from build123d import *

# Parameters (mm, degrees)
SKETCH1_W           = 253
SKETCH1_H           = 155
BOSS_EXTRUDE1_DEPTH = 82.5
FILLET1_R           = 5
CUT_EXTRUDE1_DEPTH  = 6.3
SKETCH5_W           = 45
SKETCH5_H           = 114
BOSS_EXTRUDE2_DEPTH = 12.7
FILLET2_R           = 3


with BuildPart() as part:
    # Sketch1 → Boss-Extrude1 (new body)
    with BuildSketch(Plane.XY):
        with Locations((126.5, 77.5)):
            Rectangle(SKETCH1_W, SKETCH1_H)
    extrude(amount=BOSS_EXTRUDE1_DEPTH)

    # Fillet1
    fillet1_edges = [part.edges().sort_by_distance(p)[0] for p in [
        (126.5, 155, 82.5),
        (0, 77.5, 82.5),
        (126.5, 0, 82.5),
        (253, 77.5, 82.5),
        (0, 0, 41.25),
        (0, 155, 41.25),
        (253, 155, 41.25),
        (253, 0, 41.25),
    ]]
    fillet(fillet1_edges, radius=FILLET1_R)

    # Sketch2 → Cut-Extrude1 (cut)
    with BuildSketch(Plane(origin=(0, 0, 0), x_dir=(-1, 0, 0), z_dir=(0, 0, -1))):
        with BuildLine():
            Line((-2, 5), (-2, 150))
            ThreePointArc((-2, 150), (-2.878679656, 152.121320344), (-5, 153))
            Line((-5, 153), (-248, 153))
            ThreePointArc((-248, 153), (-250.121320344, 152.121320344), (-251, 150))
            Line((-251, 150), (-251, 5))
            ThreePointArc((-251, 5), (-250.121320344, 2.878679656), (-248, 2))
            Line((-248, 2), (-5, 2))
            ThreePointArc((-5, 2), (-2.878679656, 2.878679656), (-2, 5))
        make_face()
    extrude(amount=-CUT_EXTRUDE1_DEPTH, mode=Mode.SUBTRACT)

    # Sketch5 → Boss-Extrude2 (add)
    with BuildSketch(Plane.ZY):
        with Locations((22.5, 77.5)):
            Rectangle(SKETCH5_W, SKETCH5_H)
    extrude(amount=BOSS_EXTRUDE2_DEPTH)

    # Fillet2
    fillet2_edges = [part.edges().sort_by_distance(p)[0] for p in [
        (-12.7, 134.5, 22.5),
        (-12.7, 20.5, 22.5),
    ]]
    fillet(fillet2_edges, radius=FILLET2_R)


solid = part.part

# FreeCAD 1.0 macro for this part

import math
import FreeCAD as App
import Part
import Sketcher
Q = App.Units.Quantity


def edges_at(feature, points):
    """Names of the edges that pass closest to the given points."""
    edges = feature.Shape.Edges
    near = lambda p: min(range(len(edges)), key=lambda i: edges[i].distToShape(Part.Vertex(*p))[0])
    return sorted({f"Edge{near(p) + 1}" for p in points})


def add_polygon(sketch, points):
    """Adds a closed chain of lines whose ends are joined by coincident constraints."""
    first, n = sketch.GeometryCount, len(points)
    for a, b in zip(points, points[1:] + points[:1]):
        sketch.addGeometry(Part.LineSegment(App.Vector(*a, 0), App.Vector(*b, 0)), False)
    for i in range(n):
        sketch.addConstraint(Sketcher.Constraint("Coincident", first + i, 2, first + (i + 1) % n, 1))

doc = App.newDocument("Part")
body = doc.addObject("PartDesign::Body", "Body")

sketch1 = body.newObject("Sketcher::SketchObject", "Sketch")
sketch1.AttachmentSupport = (doc.getObject("XY_Plane"), [""])
sketch1.MapMode = "FlatFace"
add_polygon(sketch1, [(0, 155), (0, 0), (253, 0), (253, 155)])
sketch1.addConstraint([
    Sketcher.Constraint("Vertical", 0),
    Sketcher.Constraint("Horizontal", 1),
    Sketcher.Constraint("Vertical", 2),
    Sketcher.Constraint("Horizontal", 3),
    Sketcher.Constraint("Coincident", 0, 2, -1, 1),
    Sketcher.Constraint("DistanceX", 1, 1, 1, 2, Q("253 mm")),
    Sketcher.Constraint("DistanceY", 0, 2, 0, 1, Q("155 mm")),
])
pad1 = body.newObject("PartDesign::Pad", "Pad")
pad1.Profile = sketch1
pad1.Length = 82.5
doc.recompute()

fillet = body.newObject("PartDesign::Fillet", "Fillet")
fillet.Base = (pad1, edges_at(pad1, [
    (126.5, 155, 82.5),
    (0, 77.5, 82.5),
    (126.5, 0, 82.5),
    (253, 77.5, 82.5),
    (0, 0, 41.25),
    (0, 155, 41.25),
    (253, 155, 41.25),
    (253, 0, 41.25),
]))
fillet.Radius = 5

sketch2 = body.newObject("Sketcher::SketchObject", "Sketch001")
sketch2.AttachmentSupport = (doc.getObject("XY_Plane"), [""])
sketch2.MapMode = "FlatFace"
sketch2.addGeometry([
    Part.LineSegment(App.Vector(2, 5, 0), App.Vector(2, 150, 0)),
    Part.ArcOfCircle(Part.Circle(App.Vector(5, 150, 0), App.Vector(0, 0, 1), 3), math.radians(90), math.radians(180)),
    Part.LineSegment(App.Vector(5, 153, 0), App.Vector(248, 153, 0)),
    Part.ArcOfCircle(Part.Circle(App.Vector(248, 150, 0), App.Vector(0, 0, 1), 3), math.radians(0), math.radians(90)),
    Part.LineSegment(App.Vector(251, 150, 0), App.Vector(251, 5, 0)),
    Part.ArcOfCircle(Part.Circle(App.Vector(248, 5, 0), App.Vector(0, 0, 1), 3), math.radians(-90), math.radians(0)),
    Part.LineSegment(App.Vector(248, 2, 0), App.Vector(5, 2, 0)),
    Part.ArcOfCircle(Part.Circle(App.Vector(5, 5, 0), App.Vector(0, 0, 1), 3), math.radians(180), math.radians(270)),
], False)
sketch2.addConstraint([
    Sketcher.Constraint("Tangent", 0, 2, 1, 2),
    Sketcher.Constraint("Tangent", 1, 1, 2, 1),
    Sketcher.Constraint("Tangent", 2, 2, 3, 2),
    Sketcher.Constraint("Tangent", 3, 1, 4, 1),
    Sketcher.Constraint("Tangent", 4, 2, 5, 2),
    Sketcher.Constraint("Tangent", 5, 1, 6, 1),
    Sketcher.Constraint("Tangent", 6, 2, 7, 2),
    Sketcher.Constraint("Tangent", 7, 1, 0, 1),
    Sketcher.Constraint("Vertical", 0),
    Sketcher.Constraint("Horizontal", 2),
    Sketcher.Constraint("Vertical", 4),
    Sketcher.Constraint("Horizontal", 6),
    Sketcher.Constraint("Equal", 1, 3),
    Sketcher.Constraint("Equal", 3, 5),
    Sketcher.Constraint("Equal", 5, 7),
    Sketcher.Constraint("Radius", 1, Q("3 mm")),
    Sketcher.Constraint("DistanceX", 2, 1, 2, 2, Q("243 mm")),
    Sketcher.Constraint("DistanceY", 0, 1, 0, 2, Q("145 mm")),
    Sketcher.Constraint("DistanceX", -1, 1, 1, 3, Q("5 mm")),
    Sketcher.Constraint("DistanceY", -1, 1, 1, 3, Q("150 mm")),
])
pocket1 = body.newObject("PartDesign::Pocket", "Pocket")
pocket1.Profile = sketch2
pocket1.Length = 6.3
pocket1.Reversed = True

sketch3 = body.newObject("Sketcher::SketchObject", "Sketch002")
sketch3.AttachmentSupport = (doc.getObject("YZ_Plane"), [""])
sketch3.MapMode = "FlatFace"
add_polygon(sketch3, [(134, 0), (20, 0), (20, 45), (134, 45)])
sketch3.addConstraint([
    Sketcher.Constraint("Horizontal", 0),
    Sketcher.Constraint("Vertical", 1),
    Sketcher.Constraint("Horizontal", 2),
    Sketcher.Constraint("Vertical", 3),
    Sketcher.Constraint("PointOnObject", 0, 2, -1),
    Sketcher.Constraint("DistanceX", 0, 2, 0, 1, Q("114 mm")),
    Sketcher.Constraint("DistanceY", 1, 1, 1, 2, Q("45 mm")),
    Sketcher.Constraint("DistanceX", -1, 1, 0, 2, Q("20.5 mm")),
])
pad2 = body.newObject("PartDesign::Pad", "Pad001")
pad2.Profile = sketch3
pad2.Length = 12.7
pad2.Reversed = True
doc.recompute()

fillet2 = body.newObject("PartDesign::Fillet", "Fillet001")
fillet2.Base = (pad2, edges_at(pad2, [(-12.7, 134.5, 22.5), (-12.7, 20.5, 22.5)]))
fillet2.Radius = 3

doc.recompute()
